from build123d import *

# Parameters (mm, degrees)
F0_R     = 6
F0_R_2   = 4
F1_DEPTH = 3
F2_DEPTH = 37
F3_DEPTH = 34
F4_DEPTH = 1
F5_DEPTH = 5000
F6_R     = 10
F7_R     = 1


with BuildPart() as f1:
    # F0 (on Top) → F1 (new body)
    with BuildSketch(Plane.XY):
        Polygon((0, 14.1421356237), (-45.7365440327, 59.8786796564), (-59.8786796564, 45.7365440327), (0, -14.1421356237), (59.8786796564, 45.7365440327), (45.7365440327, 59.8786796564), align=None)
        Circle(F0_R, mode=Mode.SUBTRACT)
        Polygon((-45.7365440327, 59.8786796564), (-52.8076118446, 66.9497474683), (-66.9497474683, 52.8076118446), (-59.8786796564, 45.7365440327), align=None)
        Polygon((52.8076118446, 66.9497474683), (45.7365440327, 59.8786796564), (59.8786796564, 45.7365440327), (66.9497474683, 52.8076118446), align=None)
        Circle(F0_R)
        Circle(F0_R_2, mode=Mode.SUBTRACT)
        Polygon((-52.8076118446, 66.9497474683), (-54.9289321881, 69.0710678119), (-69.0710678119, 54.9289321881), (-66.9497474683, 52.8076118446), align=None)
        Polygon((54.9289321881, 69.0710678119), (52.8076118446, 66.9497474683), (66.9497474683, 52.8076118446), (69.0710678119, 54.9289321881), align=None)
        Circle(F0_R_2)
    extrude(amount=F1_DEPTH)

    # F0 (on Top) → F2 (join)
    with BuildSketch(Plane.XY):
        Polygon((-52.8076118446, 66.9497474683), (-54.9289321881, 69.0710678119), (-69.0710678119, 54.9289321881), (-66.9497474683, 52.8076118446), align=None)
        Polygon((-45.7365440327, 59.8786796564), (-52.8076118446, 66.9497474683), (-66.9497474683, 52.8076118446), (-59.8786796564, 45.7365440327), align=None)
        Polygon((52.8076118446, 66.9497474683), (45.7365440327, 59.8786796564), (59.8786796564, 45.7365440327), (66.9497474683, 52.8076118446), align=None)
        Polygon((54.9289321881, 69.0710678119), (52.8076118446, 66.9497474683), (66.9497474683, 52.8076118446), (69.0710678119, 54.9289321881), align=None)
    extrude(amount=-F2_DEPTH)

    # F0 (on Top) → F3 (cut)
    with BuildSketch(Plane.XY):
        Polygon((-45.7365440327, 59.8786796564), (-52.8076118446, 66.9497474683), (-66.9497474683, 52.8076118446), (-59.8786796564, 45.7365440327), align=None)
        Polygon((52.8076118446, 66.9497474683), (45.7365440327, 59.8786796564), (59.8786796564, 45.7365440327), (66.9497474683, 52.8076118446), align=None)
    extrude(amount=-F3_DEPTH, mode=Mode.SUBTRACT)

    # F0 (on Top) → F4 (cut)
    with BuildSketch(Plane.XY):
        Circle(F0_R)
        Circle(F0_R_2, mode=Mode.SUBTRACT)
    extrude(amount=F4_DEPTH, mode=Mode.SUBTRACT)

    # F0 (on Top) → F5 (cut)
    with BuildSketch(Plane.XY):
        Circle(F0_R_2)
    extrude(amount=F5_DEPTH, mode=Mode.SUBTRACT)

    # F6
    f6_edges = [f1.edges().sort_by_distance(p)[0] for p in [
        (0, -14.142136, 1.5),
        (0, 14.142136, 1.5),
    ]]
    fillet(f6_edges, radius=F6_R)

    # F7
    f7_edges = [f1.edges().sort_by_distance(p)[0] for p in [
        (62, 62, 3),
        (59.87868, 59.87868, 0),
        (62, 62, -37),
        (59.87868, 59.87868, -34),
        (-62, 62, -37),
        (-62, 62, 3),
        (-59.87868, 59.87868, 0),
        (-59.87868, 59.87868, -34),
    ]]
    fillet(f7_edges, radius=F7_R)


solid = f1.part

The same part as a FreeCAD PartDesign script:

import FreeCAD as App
import Part
import Sketcher
from FreeCAD import Vector
Q = App.Units.Quantity


def edges_at(feature, points):
    """Names of the edges that pass closest to the given points."""
    edges = feature.Shape.Edges
    near = lambda p: min(range(len(edges)), key=lambda i: edges[i].distToShape(Part.Vertex(*p))[0])
    return sorted({f"Edge{near(p) + 1}" for p in points})

doc = App.newDocument("Part")
body = doc.addObject("PartDesign::Body", "Body")

# Sketch on XY plane
sketch1 = body.newObject("Sketcher::SketchObject", "Sketch")
sketch1.AttachmentSupport = (doc.getObject("XY_Plane"), [""])
sketch1.MapMode = "FlatFace"
sketch1.addGeometry([
    Part.LineSegment(Vector(0, 14.142136, 0), Vector(-52.807612, 66.949747, 0)),  # 0
    Part.LineSegment(Vector(-52.807612, 66.949747, 0), Vector(-54.928932, 69.071068, 0)),  # 1
    Part.LineSegment(Vector(-54.928932, 69.071068, 0), Vector(-69.071068, 54.928932, 0)),  # 2
    Part.LineSegment(Vector(-69.071068, 54.928932, 0), Vector(-66.949747, 52.807612, 0)),  # 3
    Part.LineSegment(Vector(-66.949747, 52.807612, 0), Vector(0, -14.142136, 0)),  # 4
    Part.LineSegment(Vector(0, -14.142136, 0), Vector(66.949747, 52.807612, 0)),  # 5
    Part.LineSegment(Vector(66.949747, 52.807612, 0), Vector(69.071068, 54.928932, 0)),  # 6
    Part.LineSegment(Vector(69.071068, 54.928932, 0), Vector(54.928932, 69.071068, 0)),  # 7
    Part.LineSegment(Vector(54.928932, 69.071068, 0), Vector(52.807612, 66.949747, 0)),  # 8
    Part.LineSegment(Vector(52.807612, 66.949747, 0), Vector(0, 14.142136, 0)),  # 9
], False)
sketch1.addConstraint([
    Sketcher.Constraint("Coincident", 0, 2, 1, 1),
    Sketcher.Constraint("Coincident", 1, 2, 2, 1),
    Sketcher.Constraint("Coincident", 2, 2, 3, 1),
    Sketcher.Constraint("Coincident", 3, 2, 4, 1),
    Sketcher.Constraint("Coincident", 4, 2, 5, 1),
    Sketcher.Constraint("Coincident", 5, 2, 6, 1),
    Sketcher.Constraint("Coincident", 6, 2, 7, 1),
    Sketcher.Constraint("Coincident", 7, 2, 8, 1),
    Sketcher.Constraint("Coincident", 8, 2, 9, 1),
    Sketcher.Constraint("Coincident", 9, 2, 0, 1),
    Sketcher.Constraint("Symmetric", 4, 2, 9, 2, -1, 1),
    Sketcher.Constraint("Symmetric", 3, 2, 5, 2, -2),
    Sketcher.Constraint("Symmetric", 2, 2, 6, 2, -2),
    Sketcher.Constraint("Symmetric", 1, 2, 7, 2, -2),
    Sketcher.Constraint("Symmetric", 0, 2, 8, 2, -2),
    Sketcher.Constraint("PointOnObject", 4, 2, -2),
    Sketcher.Constraint("Parallel", 0, 1),
    Sketcher.Constraint("Perpendicular", 1, 2),
    Sketcher.Constraint("Perpendicular", 2, 3),
    Sketcher.Constraint("Parallel", 3, 4),
    Sketcher.Constraint("Perpendicular", 4, 5),
    Sketcher.Constraint("Equal", 1, 3),
    Sketcher.Constraint("Distance", 1, Q("3 mm")),
    Sketcher.Constraint("Distance", 2, Q("20 mm")),
    Sketcher.Constraint("DistanceX", 1, 2, 6, 2, Q("124 mm")),
])
pad1 = body.newObject("PartDesign::Pad", "Pad")
pad1.Profile = sketch1
pad1.Length = 3

# Sketch on XY plane
sketch2 = body.newObject("Sketcher::SketchObject", "Sketch001")
sketch2.AttachmentSupport = (doc.getObject("XY_Plane"), [""])
sketch2.MapMode = "FlatFace"
sketch2.addGeometry([
    Part.LineSegment(Vector(-52.807612, 66.949747, 0), Vector(-54.928932, 69.071068, 0)),  # 0
    Part.LineSegment(Vector(-54.928932, 69.071068, 0), Vector(-69.071068, 54.928932, 0)),  # 1
    Part.LineSegment(Vector(-69.071068, 54.928932, 0), Vector(-66.949747, 52.807612, 0)),  # 2
    Part.LineSegment(Vector(-66.949747, 52.807612, 0), Vector(-59.87868, 45.736544, 0)),  # 3
    Part.LineSegment(Vector(-59.87868, 45.736544, 0), Vector(-45.736544, 59.87868, 0)),  # 4
    Part.LineSegment(Vector(-45.736544, 59.87868, 0), Vector(-52.807612, 66.949747, 0)),  # 5
    Part.LineSegment(Vector(52.807612, 66.949747, 0), Vector(45.736544, 59.87868, 0)),  # 6
    Part.LineSegment(Vector(45.736544, 59.87868, 0), Vector(59.87868, 45.736544, 0)),  # 7
    Part.LineSegment(Vector(59.87868, 45.736544, 0), Vector(66.949747, 52.807612, 0)),  # 8
    Part.LineSegment(Vector(66.949747, 52.807612, 0), Vector(69.071068, 54.928932, 0)),  # 9
    Part.LineSegment(Vector(69.071068, 54.928932, 0), Vector(54.928932, 69.071068, 0)),  # 10
    Part.LineSegment(Vector(54.928932, 69.071068, 0), Vector(52.807612, 66.949747, 0)),  # 11
], False)
sketch2.addConstraint([
    Sketcher.Constraint("Coincident", 0, 2, 1, 1),
    Sketcher.Constraint("Coincident", 1, 2, 2, 1),
    Sketcher.Constraint("Coincident", 2, 2, 3, 1),
    Sketcher.Constraint("Coincident", 3, 2, 4, 1),
    Sketcher.Constraint("Coincident", 4, 2, 5, 1),
    Sketcher.Constraint("Coincident", 5, 2, 0, 1),
    Sketcher.Constraint("Coincident", 6, 2, 7, 1),
    Sketcher.Constraint("Coincident", 7, 2, 8, 1),
    Sketcher.Constraint("Coincident", 8, 2, 9, 1),
    Sketcher.Constraint("Coincident", 9, 2, 10, 1),
    Sketcher.Constraint("Coincident", 10, 2, 11, 1),
    Sketcher.Constraint("Coincident", 11, 2, 6, 1),
    Sketcher.Constraint("Symmetric", 4, 2, 6, 2, -2),
    Sketcher.Constraint("Symmetric", 3, 2, 7, 2, -2),
    Sketcher.Constraint("Symmetric", 2, 2, 8, 2, -2),
    Sketcher.Constraint("Symmetric", 1, 2, 9, 2, -2),
    Sketcher.Constraint("Symmetric", 0, 2, 10, 2, -2),
    Sketcher.Constraint("Symmetric", 5, 2, 11, 2, -2),
    Sketcher.Constraint("Perpendicular", 0, 1),
    Sketcher.Constraint("Perpendicular", 1, 2),
    Sketcher.Constraint("Parallel", 2, 3),
    Sketcher.Constraint("Perpendicular", 3, 4),
    Sketcher.Constraint("Perpendicular", 4, 5),
    Sketcher.Constraint("Perpendicular", 5, 6),
    Sketcher.Constraint("Equal", 0, 2),
    Sketcher.Constraint("Distance", 0, Q("3 mm")),
    Sketcher.Constraint("Distance", 1, Q("20 mm")),
    Sketcher.Constraint("Distance", 3, Q("10 mm")),
    Sketcher.Constraint("DistanceY", -1, 1, 2, 2, Q("52.807612 mm")),
    Sketcher.Constraint("DistanceX", 3, 2, -1, 1, Q("59.87868 mm")),
])
pad2 = body.newObject("PartDesign::Pad", "Pad001")
pad2.Profile = sketch2
pad2.Length = 37
pad2.Reversed = True

# Sketch on XY plane
sketch3 = body.newObject("Sketcher::SketchObject", "Sketch002")
sketch3.AttachmentSupport = (doc.getObject("XY_Plane"), [""])
sketch3.MapMode = "FlatFace"
sketch3.addGeometry([
    Part.LineSegment(Vector(-45.736544, 59.87868, 0), Vector(-52.807612, 66.949747, 0)),  # 0
    Part.LineSegment(Vector(-52.807612, 66.949747, 0), Vector(-66.949747, 52.807612, 0)),  # 1
    Part.LineSegment(Vector(-66.949747, 52.807612, 0), Vector(-59.87868, 45.736544, 0)),  # 2
    Part.LineSegment(Vector(-59.87868, 45.736544, 0), Vector(-45.736544, 59.87868, 0)),  # 3
    Part.LineSegment(Vector(52.807612, 66.949747, 0), Vector(45.736544, 59.87868, 0)),  # 4
    Part.LineSegment(Vector(45.736544, 59.87868, 0), Vector(59.87868, 45.736544, 0)),  # 5
    Part.LineSegment(Vector(59.87868, 45.736544, 0), Vector(66.949747, 52.807612, 0)),  # 6
    Part.LineSegment(Vector(66.949747, 52.807612, 0), Vector(52.807612, 66.949747, 0)),  # 7
], False)
sketch3.addConstraint([
    Sketcher.Constraint("Coincident", 0, 2, 1, 1),
    Sketcher.Constraint("Coincident", 1, 2, 2, 1),
    Sketcher.Constraint("Coincident", 2, 2, 3, 1),
    Sketcher.Constraint("Coincident", 3, 2, 0, 1),
    Sketcher.Constraint("Coincident", 4, 2, 5, 1),
    Sketcher.Constraint("Coincident", 5, 2, 6, 1),
    Sketcher.Constraint("Coincident", 6, 2, 7, 1),
    Sketcher.Constraint("Coincident", 7, 2, 4, 1),
    Sketcher.Constraint("Symmetric", 3, 2, 4, 2, -2),
    Sketcher.Constraint("Symmetric", 2, 2, 5, 2, -2),
    Sketcher.Constraint("Symmetric", 1, 2, 6, 2, -2),
    Sketcher.Constraint("Symmetric", 0, 2, 7, 2, -2),
    Sketcher.Constraint("Perpendicular", 0, 1),
    Sketcher.Constraint("Perpendicular", 1, 2),
    Sketcher.Constraint("Perpendicular", 2, 3),
    Sketcher.Constraint("Parallel", 3, 4),
    Sketcher.Constraint("Distance", 0, Q("10 mm")),
    Sketcher.Constraint("Distance", 1, Q("20 mm")),
    Sketcher.Constraint("DistanceX", 0, 2, -1, 1, Q("52.807612 mm")),
    Sketcher.Constraint("DistanceY", -1, 1, 1, 2, Q("52.807612 mm")),
])
pocket1 = body.newObject("PartDesign::Pocket", "Pocket")
pocket1.Profile = sketch3
pocket1.Length = 34

# Sketch on XY plane
sketch4 = body.newObject("Sketcher::SketchObject", "Sketch003")
sketch4.AttachmentSupport = (doc.getObject("XY_Plane"), [""])
sketch4.MapMode = "FlatFace"
sketch4.addGeometry([
    Part.Circle(Vector(0, 0, 0), Vector(0, 0, 1), 6),
    Part.Circle(Vector(0, 0, 0), Vector(0, 0, 1), 4),
], False)
sketch4.addConstraint([
    Sketcher.Constraint("Coincident", 0, 3, -1, 1),
    Sketcher.Constraint("Coincident", 1, 3, -1, 1),
    Sketcher.Constraint("Diameter", 0, Q("12 mm")),
    Sketcher.Constraint("Diameter", 1, Q("8 mm")),
])
pocket2 = body.newObject("PartDesign::Pocket", "Pocket001")
pocket2.Profile = sketch4
pocket2.Length = 1
pocket2.Reversed = True

# Sketch on XY plane
sketch5 = body.newObject("Sketcher::SketchObject", "Sketch004")
sketch5.AttachmentSupport = (doc.getObject("XY_Plane"), [""])
sketch5.MapMode = "FlatFace"
sketch5.addGeometry(Part.Circle(Vector(0, 0, 0), Vector(0, 0, 1), 4), False)
sketch5.addConstraint([
    Sketcher.Constraint("Coincident", 0, 3, -1, 1),
    Sketcher.Constraint("Diameter", 0, Q("8 mm")),
])
pocket3 = body.newObject("PartDesign::Pocket", "Pocket002")
pocket3.Profile = sketch5
pocket3.Length = 5000
pocket3.Reversed = True
doc.recompute()

fillet = body.newObject("PartDesign::Fillet", "Fillet")
fillet.Base = (pocket3, edges_at(pocket3, [(0, -14.142, 1.5), (0, 14.142, 1.5)]))
fillet.Radius = 10
doc.recompute()

fillet2 = body.newObject("PartDesign::Fillet", "Fillet001")
fillet2.Base = (fillet, edges_at(fillet, [
    (62, 62, 3),
    (59.879, 59.879, 0),
    (62, 62, -37),
    (59.879, 59.879, -34),
    (-62, 62, -37),
    (-62, 62, 3),
    (-59.879, 59.879, 0),
    (-59.879, 59.879, -34),
]))
fillet2.Radius = 1

doc.recompute()
